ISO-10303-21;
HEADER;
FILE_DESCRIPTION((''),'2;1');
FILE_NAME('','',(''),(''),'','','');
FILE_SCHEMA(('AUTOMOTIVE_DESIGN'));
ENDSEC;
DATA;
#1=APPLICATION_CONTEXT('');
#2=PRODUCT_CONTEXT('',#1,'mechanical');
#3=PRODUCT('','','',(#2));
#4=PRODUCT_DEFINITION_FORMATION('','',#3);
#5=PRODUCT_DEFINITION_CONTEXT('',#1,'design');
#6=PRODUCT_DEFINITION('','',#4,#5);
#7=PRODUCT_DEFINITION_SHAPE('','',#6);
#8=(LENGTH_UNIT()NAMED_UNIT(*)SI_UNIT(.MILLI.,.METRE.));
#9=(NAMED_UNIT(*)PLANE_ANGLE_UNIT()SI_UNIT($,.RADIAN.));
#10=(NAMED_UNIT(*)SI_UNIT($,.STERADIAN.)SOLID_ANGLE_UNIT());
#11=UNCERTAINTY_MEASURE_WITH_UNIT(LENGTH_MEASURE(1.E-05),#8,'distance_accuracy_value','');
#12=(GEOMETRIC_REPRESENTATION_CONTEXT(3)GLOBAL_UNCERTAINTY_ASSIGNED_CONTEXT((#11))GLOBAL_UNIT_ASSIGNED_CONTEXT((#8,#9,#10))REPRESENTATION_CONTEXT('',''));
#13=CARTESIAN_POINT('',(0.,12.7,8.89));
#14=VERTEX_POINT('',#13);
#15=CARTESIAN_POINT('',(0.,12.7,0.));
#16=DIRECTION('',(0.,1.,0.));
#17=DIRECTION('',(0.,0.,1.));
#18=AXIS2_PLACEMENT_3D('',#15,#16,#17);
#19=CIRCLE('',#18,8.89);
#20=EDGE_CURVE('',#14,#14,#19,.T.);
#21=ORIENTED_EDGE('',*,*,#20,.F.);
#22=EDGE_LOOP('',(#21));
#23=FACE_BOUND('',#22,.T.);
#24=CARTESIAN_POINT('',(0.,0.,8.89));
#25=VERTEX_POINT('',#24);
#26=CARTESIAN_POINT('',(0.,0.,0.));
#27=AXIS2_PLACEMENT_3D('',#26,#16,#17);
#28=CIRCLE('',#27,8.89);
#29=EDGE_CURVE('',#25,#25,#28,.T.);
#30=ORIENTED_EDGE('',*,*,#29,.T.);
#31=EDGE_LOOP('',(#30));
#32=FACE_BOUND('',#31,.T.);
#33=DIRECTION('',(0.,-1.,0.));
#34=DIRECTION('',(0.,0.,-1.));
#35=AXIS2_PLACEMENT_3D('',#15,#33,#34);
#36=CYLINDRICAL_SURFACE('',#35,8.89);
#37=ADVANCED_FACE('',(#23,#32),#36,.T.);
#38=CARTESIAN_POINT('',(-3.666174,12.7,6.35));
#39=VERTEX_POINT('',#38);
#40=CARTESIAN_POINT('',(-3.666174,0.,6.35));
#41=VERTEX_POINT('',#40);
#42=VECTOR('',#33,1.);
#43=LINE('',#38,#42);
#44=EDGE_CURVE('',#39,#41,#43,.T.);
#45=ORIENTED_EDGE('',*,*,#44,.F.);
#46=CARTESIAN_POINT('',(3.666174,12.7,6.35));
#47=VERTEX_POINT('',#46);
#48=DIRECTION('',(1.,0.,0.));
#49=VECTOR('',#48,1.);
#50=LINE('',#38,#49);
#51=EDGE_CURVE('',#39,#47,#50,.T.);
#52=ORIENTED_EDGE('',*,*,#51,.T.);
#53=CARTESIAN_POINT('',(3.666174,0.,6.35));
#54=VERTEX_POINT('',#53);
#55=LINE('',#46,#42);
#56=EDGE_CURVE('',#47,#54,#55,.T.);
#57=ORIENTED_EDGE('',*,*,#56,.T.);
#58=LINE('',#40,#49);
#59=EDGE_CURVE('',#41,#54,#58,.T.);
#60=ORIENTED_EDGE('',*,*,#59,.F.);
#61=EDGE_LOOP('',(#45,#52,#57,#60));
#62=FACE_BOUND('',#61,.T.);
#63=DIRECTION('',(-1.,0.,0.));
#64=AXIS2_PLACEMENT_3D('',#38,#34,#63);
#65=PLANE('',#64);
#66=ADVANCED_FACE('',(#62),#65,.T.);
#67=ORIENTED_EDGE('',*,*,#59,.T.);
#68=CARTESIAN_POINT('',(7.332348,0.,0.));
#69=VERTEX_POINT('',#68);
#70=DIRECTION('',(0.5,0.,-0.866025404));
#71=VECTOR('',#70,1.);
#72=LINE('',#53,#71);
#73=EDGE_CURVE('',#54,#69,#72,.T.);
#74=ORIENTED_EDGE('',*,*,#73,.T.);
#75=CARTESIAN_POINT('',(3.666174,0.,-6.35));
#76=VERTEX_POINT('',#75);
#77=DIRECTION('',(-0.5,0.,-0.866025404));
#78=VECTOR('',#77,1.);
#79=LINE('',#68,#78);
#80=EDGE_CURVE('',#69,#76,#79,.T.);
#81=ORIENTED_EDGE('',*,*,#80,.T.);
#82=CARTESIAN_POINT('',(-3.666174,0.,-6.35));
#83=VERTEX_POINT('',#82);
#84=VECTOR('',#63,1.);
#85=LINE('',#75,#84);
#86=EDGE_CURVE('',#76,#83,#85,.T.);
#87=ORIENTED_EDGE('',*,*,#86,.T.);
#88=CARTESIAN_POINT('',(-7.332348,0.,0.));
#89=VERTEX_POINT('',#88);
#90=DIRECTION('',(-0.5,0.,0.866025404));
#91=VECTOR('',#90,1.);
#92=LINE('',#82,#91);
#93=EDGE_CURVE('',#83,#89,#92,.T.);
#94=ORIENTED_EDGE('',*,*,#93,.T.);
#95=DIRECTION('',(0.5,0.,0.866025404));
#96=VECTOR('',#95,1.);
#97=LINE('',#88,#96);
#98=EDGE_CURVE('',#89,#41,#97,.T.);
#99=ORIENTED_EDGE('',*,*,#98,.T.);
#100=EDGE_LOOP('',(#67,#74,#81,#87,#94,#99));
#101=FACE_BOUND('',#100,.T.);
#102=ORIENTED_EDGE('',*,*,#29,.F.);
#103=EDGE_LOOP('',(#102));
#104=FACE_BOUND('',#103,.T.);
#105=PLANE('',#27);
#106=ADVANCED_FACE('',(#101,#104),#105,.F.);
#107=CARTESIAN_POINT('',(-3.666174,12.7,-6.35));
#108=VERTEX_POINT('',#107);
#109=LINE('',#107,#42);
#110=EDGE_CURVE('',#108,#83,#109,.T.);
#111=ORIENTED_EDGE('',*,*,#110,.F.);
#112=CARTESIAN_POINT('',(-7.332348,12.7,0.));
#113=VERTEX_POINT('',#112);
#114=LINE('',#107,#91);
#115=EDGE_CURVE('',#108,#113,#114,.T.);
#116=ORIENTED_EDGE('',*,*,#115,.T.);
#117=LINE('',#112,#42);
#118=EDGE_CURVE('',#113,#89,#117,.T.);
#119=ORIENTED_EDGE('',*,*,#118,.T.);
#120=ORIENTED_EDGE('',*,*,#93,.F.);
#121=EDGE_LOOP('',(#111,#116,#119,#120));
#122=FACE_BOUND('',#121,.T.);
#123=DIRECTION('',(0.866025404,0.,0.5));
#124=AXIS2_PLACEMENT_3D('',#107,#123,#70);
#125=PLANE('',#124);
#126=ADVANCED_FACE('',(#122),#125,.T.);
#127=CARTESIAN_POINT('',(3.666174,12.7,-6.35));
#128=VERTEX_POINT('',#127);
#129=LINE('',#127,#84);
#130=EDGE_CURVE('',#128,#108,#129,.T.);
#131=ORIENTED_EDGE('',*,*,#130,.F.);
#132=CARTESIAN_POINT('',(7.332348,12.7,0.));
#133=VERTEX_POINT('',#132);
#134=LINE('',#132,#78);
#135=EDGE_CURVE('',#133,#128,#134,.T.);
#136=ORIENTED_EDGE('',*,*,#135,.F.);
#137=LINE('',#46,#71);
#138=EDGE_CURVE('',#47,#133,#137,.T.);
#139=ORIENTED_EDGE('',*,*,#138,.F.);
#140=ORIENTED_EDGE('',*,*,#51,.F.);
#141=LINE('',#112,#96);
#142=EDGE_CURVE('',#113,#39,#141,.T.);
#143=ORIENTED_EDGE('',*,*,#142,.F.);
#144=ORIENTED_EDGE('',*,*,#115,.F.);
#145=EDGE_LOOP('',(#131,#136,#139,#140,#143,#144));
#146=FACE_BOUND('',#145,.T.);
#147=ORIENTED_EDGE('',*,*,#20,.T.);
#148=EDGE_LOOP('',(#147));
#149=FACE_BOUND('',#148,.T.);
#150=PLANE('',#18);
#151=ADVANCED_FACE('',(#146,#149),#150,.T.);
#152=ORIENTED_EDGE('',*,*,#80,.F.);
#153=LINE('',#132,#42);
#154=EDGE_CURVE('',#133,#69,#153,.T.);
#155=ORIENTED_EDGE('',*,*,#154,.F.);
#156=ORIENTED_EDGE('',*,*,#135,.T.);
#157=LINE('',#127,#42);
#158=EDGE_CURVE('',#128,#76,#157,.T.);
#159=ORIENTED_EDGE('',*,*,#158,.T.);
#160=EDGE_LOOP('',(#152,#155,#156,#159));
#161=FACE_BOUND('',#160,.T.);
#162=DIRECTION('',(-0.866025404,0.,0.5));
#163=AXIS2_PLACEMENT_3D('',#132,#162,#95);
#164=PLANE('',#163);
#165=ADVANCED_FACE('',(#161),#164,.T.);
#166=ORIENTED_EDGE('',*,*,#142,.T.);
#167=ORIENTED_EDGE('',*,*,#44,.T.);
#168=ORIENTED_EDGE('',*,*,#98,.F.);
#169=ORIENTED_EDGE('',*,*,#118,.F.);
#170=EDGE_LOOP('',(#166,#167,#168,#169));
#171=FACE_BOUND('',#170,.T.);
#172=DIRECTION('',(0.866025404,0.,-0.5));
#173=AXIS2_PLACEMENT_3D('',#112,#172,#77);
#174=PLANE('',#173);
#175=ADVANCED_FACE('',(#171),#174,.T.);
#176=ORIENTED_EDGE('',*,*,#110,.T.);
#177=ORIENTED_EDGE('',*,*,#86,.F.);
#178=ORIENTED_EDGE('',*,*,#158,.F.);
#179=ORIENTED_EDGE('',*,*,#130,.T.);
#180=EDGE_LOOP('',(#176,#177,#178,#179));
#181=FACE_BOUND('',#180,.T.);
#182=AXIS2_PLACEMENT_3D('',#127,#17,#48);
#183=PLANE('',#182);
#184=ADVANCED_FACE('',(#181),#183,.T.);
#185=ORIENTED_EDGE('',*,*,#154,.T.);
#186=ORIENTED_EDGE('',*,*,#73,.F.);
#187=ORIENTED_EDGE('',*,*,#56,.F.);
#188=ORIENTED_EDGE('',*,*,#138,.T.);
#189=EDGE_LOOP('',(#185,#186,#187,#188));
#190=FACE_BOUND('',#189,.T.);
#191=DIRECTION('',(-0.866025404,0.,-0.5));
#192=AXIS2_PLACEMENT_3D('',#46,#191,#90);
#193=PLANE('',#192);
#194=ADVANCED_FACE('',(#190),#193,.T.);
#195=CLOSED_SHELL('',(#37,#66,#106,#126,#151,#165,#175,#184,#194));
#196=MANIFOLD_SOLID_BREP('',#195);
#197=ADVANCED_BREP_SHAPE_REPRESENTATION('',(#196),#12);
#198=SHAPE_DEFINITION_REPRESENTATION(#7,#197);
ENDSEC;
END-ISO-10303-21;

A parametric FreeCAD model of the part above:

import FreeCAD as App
import Part
import Sketcher

V = App.Vector
Q = App.Units.Quantity


def add_polygon(sketch, points):
    """Adds a closed chain of lines whose ends are joined by coincident constraints."""
    first, n = sketch.GeometryCount, len(points)
    for a, b in zip(points, points[1:] + points[:1]):
        sketch.addGeometry(Part.LineSegment(App.Vector(*a, 0), App.Vector(*b, 0)), False)
    for i in range(n):
        sketch.addConstraint(Sketcher.Constraint("Coincident", first + i, 2, first + (i + 1) % n, 1))

doc = App.newDocument("Part")
body = doc.addObject("PartDesign::Body", "Body")

sketch1 = body.newObject("Sketcher::SketchObject", "Sketch")
sketch1.AttachmentSupport = (doc.getObject("XZ_Plane"), [""])
sketch1.MapMode = "FlatFace"
sketch1.addGeometry(Part.Circle(V(0, 0, 0), V(0, 0, 1), 9), False)
add_polygon(sketch1, [(4, -6), (7, 0), (4, 6), (-4, 6), (-7, 0), (-4, -6)])
sketch1.addConstraint([
    Sketcher.Constraint("Horizontal", 3),
    Sketcher.Constraint("Horizontal", 6),
    Sketcher.Constraint("Coincident", 0, 3, -1, 1),
    Sketcher.Constraint("Symmetric", 1, 2, 4, 2, -1, 1),
    Sketcher.Constraint("Symmetric", 2, 2, 5, 2, -1, 1),
    Sketcher.Constraint("PointOnObject", 1, 2, -1),
    Sketcher.Constraint("Parallel", 1, 4),
    Sketcher.Constraint("Vertical", 3, 2, 5, 2),
    Sketcher.Constraint("Diameter", 0, Q("0.7 in")),
    Sketcher.Constraint("Angle", 1, Q("60 deg")),
    Sketcher.Constraint("DistanceY", 5, 2, 3, 2, Q("0.5 in")),
    Sketcher.Constraint("DistanceX", 3, 2, 3, 1, 7.332348),
])
pad1 = body.newObject("PartDesign::Pad", "Pad")
pad1.Profile = sketch1
pad1.Length = Q("0.5 in")
pad1.Reversed = True

doc.recompute()
